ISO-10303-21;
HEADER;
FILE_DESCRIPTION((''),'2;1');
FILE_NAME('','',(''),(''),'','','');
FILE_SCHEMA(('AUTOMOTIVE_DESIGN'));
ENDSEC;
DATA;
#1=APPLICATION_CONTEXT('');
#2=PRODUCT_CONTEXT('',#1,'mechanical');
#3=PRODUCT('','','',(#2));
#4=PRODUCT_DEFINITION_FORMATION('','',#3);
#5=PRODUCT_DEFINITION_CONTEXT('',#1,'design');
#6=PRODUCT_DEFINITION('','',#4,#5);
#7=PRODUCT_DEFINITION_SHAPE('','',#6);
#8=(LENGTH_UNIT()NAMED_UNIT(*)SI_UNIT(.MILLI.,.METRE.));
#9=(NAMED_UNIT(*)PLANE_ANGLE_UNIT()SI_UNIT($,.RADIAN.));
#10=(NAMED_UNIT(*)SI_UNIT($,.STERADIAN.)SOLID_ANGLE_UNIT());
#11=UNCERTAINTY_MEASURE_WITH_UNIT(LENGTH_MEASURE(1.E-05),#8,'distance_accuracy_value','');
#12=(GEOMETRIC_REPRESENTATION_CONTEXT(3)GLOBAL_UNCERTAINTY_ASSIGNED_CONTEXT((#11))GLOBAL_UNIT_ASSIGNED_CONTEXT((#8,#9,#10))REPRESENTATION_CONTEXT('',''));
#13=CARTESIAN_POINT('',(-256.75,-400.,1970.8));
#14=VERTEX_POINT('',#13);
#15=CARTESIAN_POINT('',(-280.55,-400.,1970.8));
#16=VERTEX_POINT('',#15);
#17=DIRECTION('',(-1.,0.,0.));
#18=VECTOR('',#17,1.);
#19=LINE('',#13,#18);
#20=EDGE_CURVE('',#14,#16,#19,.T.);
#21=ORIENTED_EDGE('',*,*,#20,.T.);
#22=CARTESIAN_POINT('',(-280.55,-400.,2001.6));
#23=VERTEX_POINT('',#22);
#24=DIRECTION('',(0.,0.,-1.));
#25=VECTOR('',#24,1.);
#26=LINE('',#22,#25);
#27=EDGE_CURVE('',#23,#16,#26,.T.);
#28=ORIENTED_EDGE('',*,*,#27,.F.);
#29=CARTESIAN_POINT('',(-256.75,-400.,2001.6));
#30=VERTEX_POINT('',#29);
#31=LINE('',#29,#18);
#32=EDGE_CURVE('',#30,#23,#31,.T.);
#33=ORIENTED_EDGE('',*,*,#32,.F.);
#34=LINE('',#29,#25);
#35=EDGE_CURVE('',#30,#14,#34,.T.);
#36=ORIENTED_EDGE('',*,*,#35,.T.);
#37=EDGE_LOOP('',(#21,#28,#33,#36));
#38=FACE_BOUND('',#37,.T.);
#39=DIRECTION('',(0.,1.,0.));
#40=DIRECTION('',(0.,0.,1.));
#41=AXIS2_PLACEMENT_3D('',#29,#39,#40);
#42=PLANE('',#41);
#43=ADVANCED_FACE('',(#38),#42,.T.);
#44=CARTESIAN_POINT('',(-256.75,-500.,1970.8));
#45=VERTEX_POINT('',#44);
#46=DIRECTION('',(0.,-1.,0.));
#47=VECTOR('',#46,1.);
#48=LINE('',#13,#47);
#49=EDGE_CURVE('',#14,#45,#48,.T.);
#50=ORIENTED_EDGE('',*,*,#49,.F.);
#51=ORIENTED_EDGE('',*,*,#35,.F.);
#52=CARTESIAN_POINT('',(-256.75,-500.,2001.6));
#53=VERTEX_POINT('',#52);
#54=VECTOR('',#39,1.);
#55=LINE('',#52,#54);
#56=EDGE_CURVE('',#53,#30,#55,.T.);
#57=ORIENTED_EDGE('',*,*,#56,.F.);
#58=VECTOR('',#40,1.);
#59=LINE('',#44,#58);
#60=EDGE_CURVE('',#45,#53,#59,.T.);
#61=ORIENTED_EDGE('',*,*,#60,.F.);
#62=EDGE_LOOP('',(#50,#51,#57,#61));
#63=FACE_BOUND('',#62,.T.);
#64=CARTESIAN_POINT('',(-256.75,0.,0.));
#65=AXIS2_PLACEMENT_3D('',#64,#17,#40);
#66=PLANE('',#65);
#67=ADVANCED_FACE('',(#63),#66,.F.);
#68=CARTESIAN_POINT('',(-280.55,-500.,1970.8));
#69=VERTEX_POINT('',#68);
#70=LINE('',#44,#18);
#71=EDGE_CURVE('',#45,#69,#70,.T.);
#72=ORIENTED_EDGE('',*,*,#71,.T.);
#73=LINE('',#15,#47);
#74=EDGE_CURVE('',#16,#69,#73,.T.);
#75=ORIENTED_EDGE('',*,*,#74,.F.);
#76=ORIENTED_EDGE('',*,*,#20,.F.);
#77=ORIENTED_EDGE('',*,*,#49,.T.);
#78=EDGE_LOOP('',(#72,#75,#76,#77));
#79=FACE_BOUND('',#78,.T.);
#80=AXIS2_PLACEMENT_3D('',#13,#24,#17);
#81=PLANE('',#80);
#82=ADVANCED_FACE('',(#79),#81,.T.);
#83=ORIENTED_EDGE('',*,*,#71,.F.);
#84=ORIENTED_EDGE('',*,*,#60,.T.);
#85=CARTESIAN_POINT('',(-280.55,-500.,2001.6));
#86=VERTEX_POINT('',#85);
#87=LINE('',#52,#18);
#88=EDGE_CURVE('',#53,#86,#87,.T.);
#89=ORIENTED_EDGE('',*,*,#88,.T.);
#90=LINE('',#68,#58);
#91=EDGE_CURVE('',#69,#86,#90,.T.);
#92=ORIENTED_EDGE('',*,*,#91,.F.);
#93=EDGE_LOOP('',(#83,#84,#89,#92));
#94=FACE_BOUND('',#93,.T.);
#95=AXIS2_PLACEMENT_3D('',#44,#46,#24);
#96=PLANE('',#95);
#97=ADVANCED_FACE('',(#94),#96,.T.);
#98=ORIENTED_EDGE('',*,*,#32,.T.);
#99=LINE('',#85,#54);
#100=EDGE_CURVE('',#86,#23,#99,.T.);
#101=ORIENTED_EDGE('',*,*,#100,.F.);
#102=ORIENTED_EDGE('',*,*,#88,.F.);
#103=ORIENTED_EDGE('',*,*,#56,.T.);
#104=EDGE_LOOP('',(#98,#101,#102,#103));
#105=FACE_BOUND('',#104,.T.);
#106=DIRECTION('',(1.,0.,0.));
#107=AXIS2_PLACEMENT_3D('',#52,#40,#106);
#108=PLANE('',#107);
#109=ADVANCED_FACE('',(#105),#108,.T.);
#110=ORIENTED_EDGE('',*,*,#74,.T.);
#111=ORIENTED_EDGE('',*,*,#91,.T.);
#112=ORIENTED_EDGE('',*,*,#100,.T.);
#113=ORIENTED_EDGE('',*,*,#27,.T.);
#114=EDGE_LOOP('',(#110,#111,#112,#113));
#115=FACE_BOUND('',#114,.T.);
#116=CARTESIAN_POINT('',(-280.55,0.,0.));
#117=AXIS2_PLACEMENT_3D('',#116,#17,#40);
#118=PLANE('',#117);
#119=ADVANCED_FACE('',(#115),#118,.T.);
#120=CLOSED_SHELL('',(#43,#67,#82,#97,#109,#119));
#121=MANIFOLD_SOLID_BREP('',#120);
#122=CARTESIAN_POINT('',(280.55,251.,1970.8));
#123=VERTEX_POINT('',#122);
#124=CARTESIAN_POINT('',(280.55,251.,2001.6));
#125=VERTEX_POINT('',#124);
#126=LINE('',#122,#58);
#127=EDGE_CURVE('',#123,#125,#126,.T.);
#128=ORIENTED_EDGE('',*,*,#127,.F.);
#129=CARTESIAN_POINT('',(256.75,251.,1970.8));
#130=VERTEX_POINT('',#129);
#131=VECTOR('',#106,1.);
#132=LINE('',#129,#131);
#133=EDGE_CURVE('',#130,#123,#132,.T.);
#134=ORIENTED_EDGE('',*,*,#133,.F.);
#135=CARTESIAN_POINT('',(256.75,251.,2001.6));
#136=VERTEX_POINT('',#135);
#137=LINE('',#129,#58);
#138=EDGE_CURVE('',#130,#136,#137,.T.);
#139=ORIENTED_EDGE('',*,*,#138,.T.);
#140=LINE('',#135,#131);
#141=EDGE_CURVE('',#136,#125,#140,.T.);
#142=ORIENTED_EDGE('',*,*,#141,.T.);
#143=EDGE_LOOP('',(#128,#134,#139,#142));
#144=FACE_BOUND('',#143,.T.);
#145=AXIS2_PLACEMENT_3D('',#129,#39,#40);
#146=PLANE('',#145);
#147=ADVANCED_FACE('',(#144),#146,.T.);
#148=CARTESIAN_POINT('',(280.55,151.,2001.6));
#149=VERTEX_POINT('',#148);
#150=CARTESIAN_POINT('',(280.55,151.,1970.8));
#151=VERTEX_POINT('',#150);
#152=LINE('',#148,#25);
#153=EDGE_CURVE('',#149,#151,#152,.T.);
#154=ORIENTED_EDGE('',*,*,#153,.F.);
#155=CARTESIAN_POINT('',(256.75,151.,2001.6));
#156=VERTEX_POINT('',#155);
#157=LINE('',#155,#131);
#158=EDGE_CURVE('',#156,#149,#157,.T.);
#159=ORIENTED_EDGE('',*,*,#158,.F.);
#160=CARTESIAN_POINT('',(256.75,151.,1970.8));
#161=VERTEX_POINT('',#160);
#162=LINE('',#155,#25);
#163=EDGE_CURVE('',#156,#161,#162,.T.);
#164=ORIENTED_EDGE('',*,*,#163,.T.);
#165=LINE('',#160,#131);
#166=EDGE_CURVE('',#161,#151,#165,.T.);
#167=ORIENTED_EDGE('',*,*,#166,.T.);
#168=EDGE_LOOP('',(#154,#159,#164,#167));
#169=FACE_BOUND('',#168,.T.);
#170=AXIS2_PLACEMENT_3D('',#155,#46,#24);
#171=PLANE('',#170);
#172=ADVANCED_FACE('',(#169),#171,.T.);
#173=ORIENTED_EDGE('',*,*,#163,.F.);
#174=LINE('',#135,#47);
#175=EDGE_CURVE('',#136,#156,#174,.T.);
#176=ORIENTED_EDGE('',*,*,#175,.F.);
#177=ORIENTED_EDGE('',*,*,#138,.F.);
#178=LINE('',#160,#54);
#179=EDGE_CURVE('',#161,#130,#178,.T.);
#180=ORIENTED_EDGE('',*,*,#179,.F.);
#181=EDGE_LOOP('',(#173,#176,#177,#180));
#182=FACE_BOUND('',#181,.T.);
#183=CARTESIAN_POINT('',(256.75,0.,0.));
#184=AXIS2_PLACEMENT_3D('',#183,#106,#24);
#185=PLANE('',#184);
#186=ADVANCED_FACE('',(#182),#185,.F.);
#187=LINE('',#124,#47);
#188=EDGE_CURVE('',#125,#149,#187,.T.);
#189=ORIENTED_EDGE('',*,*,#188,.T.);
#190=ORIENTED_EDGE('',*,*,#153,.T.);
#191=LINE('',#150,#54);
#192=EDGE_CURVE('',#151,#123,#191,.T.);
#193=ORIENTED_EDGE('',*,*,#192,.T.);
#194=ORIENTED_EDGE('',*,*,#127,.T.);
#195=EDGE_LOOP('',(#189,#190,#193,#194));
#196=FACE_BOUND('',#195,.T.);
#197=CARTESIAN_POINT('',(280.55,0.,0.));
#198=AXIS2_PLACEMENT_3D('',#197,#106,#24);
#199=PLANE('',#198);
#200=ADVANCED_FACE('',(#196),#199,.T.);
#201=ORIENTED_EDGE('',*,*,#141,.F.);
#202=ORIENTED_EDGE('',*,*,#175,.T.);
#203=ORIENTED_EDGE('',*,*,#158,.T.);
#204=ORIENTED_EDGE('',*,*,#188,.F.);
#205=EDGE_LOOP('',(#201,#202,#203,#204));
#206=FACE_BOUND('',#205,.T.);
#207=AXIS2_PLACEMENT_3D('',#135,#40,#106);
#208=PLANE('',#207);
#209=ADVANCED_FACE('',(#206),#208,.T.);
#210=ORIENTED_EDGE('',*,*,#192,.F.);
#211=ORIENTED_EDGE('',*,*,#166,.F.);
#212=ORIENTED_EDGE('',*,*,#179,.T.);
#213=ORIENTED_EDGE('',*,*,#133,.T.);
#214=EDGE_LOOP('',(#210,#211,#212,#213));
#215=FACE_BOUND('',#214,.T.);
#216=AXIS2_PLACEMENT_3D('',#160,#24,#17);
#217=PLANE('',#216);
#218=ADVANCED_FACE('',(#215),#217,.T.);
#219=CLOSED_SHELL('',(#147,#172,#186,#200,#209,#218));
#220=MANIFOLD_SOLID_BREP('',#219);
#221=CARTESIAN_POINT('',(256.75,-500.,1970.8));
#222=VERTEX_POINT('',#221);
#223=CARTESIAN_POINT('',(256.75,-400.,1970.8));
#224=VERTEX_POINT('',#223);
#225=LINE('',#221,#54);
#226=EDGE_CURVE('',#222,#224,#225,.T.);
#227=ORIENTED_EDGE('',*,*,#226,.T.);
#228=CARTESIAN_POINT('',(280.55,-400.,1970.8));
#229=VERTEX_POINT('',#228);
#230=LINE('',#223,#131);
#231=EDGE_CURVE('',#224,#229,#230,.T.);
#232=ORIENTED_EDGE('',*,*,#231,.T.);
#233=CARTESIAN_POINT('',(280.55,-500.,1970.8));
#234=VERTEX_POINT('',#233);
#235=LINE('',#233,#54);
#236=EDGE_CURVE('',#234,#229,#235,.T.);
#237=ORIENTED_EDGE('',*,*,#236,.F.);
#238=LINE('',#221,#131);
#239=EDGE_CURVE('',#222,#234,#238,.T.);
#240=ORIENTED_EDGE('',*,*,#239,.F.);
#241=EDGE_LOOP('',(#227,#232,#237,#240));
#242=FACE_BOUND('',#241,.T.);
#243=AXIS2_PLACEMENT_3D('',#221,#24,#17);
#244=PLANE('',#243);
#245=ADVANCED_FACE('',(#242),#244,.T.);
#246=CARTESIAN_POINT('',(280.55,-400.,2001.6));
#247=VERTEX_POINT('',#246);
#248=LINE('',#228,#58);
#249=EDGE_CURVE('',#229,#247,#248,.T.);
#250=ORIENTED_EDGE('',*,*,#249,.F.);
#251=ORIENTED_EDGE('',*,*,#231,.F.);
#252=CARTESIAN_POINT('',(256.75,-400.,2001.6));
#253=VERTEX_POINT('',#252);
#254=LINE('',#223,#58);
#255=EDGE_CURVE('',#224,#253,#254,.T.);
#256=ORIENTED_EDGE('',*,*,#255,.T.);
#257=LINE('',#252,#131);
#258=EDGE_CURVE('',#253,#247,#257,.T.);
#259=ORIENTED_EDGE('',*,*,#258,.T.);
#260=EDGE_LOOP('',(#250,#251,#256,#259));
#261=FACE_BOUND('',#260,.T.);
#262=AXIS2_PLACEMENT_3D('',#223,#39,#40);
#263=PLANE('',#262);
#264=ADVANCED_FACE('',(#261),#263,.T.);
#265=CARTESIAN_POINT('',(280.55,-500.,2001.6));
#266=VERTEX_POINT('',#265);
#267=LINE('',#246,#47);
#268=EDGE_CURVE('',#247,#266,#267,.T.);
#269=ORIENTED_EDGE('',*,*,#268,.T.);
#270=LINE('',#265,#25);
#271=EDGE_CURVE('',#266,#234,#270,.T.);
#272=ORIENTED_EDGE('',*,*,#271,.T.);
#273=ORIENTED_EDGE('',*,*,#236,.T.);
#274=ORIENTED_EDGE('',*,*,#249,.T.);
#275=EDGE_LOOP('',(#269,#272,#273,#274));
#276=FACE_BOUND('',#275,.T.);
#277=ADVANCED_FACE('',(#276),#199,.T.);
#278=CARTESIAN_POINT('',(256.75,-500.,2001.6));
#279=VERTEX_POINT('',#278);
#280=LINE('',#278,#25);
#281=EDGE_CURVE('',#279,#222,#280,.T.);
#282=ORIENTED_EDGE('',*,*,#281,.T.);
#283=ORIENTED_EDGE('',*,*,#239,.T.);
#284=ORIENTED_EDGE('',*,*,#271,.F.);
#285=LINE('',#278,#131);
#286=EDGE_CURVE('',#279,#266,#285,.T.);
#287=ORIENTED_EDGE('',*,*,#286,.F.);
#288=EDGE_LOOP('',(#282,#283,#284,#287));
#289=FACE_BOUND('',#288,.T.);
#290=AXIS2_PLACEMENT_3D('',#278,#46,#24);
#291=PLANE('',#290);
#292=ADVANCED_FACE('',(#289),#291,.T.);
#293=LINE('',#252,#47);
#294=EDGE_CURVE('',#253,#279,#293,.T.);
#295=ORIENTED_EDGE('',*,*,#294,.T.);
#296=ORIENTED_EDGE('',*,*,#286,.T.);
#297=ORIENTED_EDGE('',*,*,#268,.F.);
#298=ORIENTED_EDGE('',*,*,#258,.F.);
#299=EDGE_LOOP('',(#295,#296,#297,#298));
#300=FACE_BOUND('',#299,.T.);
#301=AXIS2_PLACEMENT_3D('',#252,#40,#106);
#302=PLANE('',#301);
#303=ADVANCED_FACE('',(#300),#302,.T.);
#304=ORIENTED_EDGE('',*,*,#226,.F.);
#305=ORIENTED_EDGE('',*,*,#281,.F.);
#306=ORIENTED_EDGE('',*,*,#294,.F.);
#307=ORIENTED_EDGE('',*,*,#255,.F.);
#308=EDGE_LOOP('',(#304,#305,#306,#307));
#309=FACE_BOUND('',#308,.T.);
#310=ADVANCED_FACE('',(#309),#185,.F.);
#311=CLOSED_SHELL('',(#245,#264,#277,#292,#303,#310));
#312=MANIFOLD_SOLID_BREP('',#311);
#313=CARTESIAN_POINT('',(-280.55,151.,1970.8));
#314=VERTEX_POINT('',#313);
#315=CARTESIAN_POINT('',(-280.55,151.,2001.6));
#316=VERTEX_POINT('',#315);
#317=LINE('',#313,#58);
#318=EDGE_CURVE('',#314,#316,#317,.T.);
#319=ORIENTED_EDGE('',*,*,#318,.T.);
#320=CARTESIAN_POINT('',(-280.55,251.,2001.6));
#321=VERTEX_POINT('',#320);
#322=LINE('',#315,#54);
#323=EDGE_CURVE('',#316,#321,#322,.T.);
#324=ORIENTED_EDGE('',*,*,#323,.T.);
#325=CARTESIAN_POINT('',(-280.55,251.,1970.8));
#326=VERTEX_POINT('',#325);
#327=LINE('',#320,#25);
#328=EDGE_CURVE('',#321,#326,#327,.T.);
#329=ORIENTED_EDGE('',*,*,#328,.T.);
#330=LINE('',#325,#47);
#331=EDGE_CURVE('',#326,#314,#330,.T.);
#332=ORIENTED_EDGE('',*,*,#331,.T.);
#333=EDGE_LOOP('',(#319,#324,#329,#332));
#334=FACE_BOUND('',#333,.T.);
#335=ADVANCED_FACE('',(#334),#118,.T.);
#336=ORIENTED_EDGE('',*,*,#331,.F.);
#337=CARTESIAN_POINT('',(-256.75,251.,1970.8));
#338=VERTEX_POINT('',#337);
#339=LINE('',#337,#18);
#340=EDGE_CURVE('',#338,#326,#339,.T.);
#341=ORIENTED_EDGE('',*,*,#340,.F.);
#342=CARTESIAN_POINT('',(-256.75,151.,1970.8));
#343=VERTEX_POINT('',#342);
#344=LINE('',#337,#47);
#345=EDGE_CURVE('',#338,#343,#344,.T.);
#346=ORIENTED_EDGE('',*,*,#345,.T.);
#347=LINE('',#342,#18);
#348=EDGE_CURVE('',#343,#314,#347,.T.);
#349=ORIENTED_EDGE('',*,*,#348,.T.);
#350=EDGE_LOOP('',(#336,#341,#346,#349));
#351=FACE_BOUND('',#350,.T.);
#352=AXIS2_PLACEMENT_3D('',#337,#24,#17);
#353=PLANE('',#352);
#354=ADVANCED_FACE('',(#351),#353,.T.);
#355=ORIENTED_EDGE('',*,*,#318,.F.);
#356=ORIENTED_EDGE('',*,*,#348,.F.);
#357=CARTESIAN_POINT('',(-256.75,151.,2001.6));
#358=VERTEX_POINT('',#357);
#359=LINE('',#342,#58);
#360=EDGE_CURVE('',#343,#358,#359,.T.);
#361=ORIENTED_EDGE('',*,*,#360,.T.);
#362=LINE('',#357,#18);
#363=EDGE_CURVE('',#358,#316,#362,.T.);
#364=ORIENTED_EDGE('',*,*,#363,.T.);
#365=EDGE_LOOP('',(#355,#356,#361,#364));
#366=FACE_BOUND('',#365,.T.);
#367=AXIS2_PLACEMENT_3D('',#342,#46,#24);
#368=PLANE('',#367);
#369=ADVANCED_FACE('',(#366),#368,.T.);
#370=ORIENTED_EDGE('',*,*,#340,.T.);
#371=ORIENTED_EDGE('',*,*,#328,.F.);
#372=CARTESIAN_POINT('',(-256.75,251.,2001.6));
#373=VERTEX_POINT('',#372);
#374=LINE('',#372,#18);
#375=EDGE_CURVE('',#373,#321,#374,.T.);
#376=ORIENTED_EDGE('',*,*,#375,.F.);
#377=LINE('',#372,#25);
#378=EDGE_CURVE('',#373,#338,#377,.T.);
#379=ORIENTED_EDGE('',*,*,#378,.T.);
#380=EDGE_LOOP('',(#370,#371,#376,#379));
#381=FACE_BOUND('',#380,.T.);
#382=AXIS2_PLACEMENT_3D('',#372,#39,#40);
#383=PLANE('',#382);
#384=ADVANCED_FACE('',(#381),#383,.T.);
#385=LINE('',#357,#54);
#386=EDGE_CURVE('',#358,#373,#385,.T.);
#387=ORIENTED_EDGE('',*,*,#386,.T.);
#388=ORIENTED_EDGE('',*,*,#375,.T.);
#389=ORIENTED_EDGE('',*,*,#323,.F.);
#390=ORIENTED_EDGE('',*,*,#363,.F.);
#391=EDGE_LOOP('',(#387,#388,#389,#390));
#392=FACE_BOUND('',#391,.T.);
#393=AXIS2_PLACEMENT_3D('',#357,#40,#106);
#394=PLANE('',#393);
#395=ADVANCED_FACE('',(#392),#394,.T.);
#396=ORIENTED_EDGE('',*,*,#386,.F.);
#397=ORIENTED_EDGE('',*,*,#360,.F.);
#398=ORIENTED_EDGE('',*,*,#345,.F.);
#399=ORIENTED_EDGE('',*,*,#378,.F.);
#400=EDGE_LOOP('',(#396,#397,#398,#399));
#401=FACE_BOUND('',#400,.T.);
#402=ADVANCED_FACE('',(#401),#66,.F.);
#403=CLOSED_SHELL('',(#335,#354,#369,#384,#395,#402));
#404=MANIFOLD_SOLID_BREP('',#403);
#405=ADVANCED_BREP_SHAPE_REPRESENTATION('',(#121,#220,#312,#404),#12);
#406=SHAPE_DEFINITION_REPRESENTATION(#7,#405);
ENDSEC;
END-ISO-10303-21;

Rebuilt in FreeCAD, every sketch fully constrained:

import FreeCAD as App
import Part
import Sketcher

V = App.Vector
Q = App.Units.Quantity

doc = App.newDocument("Part")
params = doc.addObject("Spreadsheet::Sheet", "Params")
for row, (alias, value) in enumerate([
    ("sketch1_width", "100 mm"),
    ("sketch1_height", "30.8 mm"),
    ("pad1_length", "23.8 mm"),
    ("sketch2_width", "100 mm"),
    ("sketch2_height", "30.8 mm"),
    ("pad2_length", "23.8 mm"),
    ("sketch3_width", "100 mm"),
    ("sketch3_height", "30.8 mm"),
    ("pad3_length", "23.8 mm"),
    ("sketch4_width", "100 mm"),
    ("sketch4_height", "30.8 mm"),
    ("pad4_length", "23.8 mm"),
], start=1):
    params.set(f"A{row}", alias)
    params.set(f"B{row}", "=" + value)
    params.setAlias(f"B{row}", alias)

body = doc.addObject("PartDesign::Body", "Body")

sketch1 = doc.addObject("Sketcher::SketchObject", "Sketch")
body.addObject(sketch1)
sketch1.AttachmentSupport = (doc.YZ_Plane, [""])
sketch1.MapMode = "FlatFace"
sketch1.AttachmentOffset = App.Placement(V(0, 0, 280.55), App.Rotation())
sketch1.addGeometry(Part.LineSegment(V(-400, 2001.6, 0), V(-500, 2001.6, 0)), False)
sketch1.addGeometry(Part.LineSegment(V(-500, 2001.6, 0), V(-500, 1970.8, 0)), False)
sketch1.addGeometry(Part.LineSegment(V(-500, 1970.8, 0), V(-400, 1970.8, 0)), False)
sketch1.addGeometry(Part.LineSegment(V(-400, 1970.8, 0), V(-400, 2001.6, 0)), False)
sketch1.addConstraint(Sketcher.Constraint("Coincident", 0, 2, 1, 1))
sketch1.addConstraint(Sketcher.Constraint("Coincident", 1, 2, 2, 1))
sketch1.addConstraint(Sketcher.Constraint("Coincident", 2, 2, 3, 1))
sketch1.addConstraint(Sketcher.Constraint("Coincident", 3, 2, 0, 1))
sketch1.addConstraint(Sketcher.Constraint("Horizontal", 0))
sketch1.addConstraint(Sketcher.Constraint("Vertical", 1))
sketch1.addConstraint(Sketcher.Constraint("Horizontal", 2))
sketch1.addConstraint(Sketcher.Constraint("Vertical", 3))
sketch1.addConstraint(Sketcher.Constraint("DistanceX", 0, 2, 0, 1, Q("100 mm")))
sketch1.addConstraint(Sketcher.Constraint("DistanceY", 1, 2, 1, 1, Q("30.8 mm")))
sketch1.addConstraint(Sketcher.Constraint("DistanceX", 0, 2, -1, 1, Q("500 mm")))
sketch1.addConstraint(Sketcher.Constraint("DistanceY", -1, 1, 0, 2, Q("2001.6 mm")))
sketch1.setExpression("Constraints[8]", "Params.sketch1_width")
sketch1.setExpression("Constraints[9]", "Params.sketch1_height")
pad1 = doc.addObject("PartDesign::Pad", "Pad")
body.addObject(pad1)
pad1.Profile = sketch1
pad1.setExpression("Length", "Params.pad1_length")
pad1.Reversed = True
body2 = doc.addObject("PartDesign::Body", "Body001")

sketch2 = doc.addObject("Sketcher::SketchObject", "Sketch001")
body2.addObject(sketch2)
sketch2.AttachmentSupport = (doc.getObject("YZ_Plane001"), [""])
sketch2.MapMode = "FlatFace"
sketch2.AttachmentOffset = App.Placement(V(0, 0, 280.55), App.Rotation())
sketch2.addGeometry(Part.LineSegment(V(251, 2001.6, 0), V(151, 2001.6, 0)), False)
sketch2.addGeometry(Part.LineSegment(V(151, 2001.6, 0), V(151, 1970.8, 0)), False)
sketch2.addGeometry(Part.LineSegment(V(151, 1970.8, 0), V(251, 1970.8, 0)), False)
sketch2.addGeometry(Part.LineSegment(V(251, 1970.8, 0), V(251, 2001.6, 0)), False)
sketch2.addConstraint(Sketcher.Constraint("Coincident", 0, 2, 1, 1))
sketch2.addConstraint(Sketcher.Constraint("Coincident", 1, 2, 2, 1))
sketch2.addConstraint(Sketcher.Constraint("Coincident", 2, 2, 3, 1))
sketch2.addConstraint(Sketcher.Constraint("Coincident", 3, 2, 0, 1))
sketch2.addConstraint(Sketcher.Constraint("Horizontal", 0))
sketch2.addConstraint(Sketcher.Constraint("Vertical", 1))
sketch2.addConstraint(Sketcher.Constraint("Horizontal", 2))
sketch2.addConstraint(Sketcher.Constraint("Vertical", 3))
sketch2.addConstraint(Sketcher.Constraint("DistanceX", 0, 2, 0, 1, Q("100 mm")))
sketch2.addConstraint(Sketcher.Constraint("DistanceY", 1, 2, 1, 1, Q("30.8 mm")))
sketch2.addConstraint(Sketcher.Constraint("DistanceX", -1, 1, 0, 2, Q("151 mm")))
sketch2.addConstraint(Sketcher.Constraint("DistanceY", -1, 1, 0, 2, Q("2001.6 mm")))
sketch2.setExpression("Constraints[8]", "Params.sketch2_width")
sketch2.setExpression("Constraints[9]", "Params.sketch2_height")
pad2 = doc.addObject("PartDesign::Pad", "Pad001")
body2.addObject(pad2)
pad2.Profile = sketch2
pad2.setExpression("Length", "Params.pad2_length")
pad2.Reversed = True
body3 = doc.addObject("PartDesign::Body", "Body002")

sketch3 = doc.addObject("Sketcher::SketchObject", "Sketch002")
body3.addObject(sketch3)
sketch3.AttachmentSupport = (doc.getObject("YZ_Plane002"), [""])
sketch3.MapMode = "FlatFace"
sketch3.AttachmentOffset = App.Placement(V(0, 0, -280.55), App.Rotation())
sketch3.addGeometry(Part.LineSegment(V(-400, 1970.8, 0), V(-500, 1970.8, 0)), False)
sketch3.addGeometry(Part.LineSegment(V(-500, 1970.8, 0), V(-500, 2001.6, 0)), False)
sketch3.addGeometry(Part.LineSegment(V(-500, 2001.6, 0), V(-400, 2001.6, 0)), False)
sketch3.addGeometry(Part.LineSegment(V(-400, 2001.6, 0), V(-400, 1970.8, 0)), False)
sketch3.addConstraint(Sketcher.Constraint("Coincident", 0, 2, 1, 1))
sketch3.addConstraint(Sketcher.Constraint("Coincident", 1, 2, 2, 1))
sketch3.addConstraint(Sketcher.Constraint("Coincident", 2, 2, 3, 1))
sketch3.addConstraint(Sketcher.Constraint("Coincident", 3, 2, 0, 1))
sketch3.addConstraint(Sketcher.Constraint("Horizontal", 0))
sketch3.addConstraint(Sketcher.Constraint("Vertical", 1))
sketch3.addConstraint(Sketcher.Constraint("Horizontal", 2))
sketch3.addConstraint(Sketcher.Constraint("Vertical", 3))
sketch3.addConstraint(Sketcher.Constraint("DistanceX", 0, 2, 0, 1, Q("100 mm")))
sketch3.addConstraint(Sketcher.Constraint("DistanceY", 1, 1, 1, 2, Q("30.8 mm")))
sketch3.addConstraint(Sketcher.Constraint("DistanceX", 0, 2, -1, 1, Q("500 mm")))
sketch3.addConstraint(Sketcher.Constraint("DistanceY", -1, 1, 0, 2, Q("1970.8 mm")))
sketch3.setExpression("Constraints[8]", "Params.sketch3_width")
sketch3.setExpression("Constraints[9]", "Params.sketch3_height")
pad3 = doc.addObject("PartDesign::Pad", "Pad002")
body3.addObject(pad3)
pad3.Profile = sketch3
pad3.setExpression("Length", "Params.pad3_length")
body4 = doc.addObject("PartDesign::Body", "Body003")

sketch4 = doc.addObject("Sketcher::SketchObject", "Sketch003")
body4.addObject(sketch4)
sketch4.AttachmentSupport = (doc.getObject("YZ_Plane003"), [""])
sketch4.MapMode = "FlatFace"
sketch4.AttachmentOffset = App.Placement(V(0, 0, -280.55), App.Rotation())
sketch4.addGeometry(Part.LineSegment(V(251, 1970.8, 0), V(151, 1970.8, 0)), False)
sketch4.addGeometry(Part.LineSegment(V(151, 1970.8, 0), V(151, 2001.6, 0)), False)
sketch4.addGeometry(Part.LineSegment(V(151, 2001.6, 0), V(251, 2001.6, 0)), False)
sketch4.addGeometry(Part.LineSegment(V(251, 2001.6, 0), V(251, 1970.8, 0)), False)
sketch4.addConstraint(Sketcher.Constraint("Coincident", 0, 2, 1, 1))
sketch4.addConstraint(Sketcher.Constraint("Coincident", 1, 2, 2, 1))
sketch4.addConstraint(Sketcher.Constraint("Coincident", 2, 2, 3, 1))
sketch4.addConstraint(Sketcher.Constraint("Coincident", 3, 2, 0, 1))
sketch4.addConstraint(Sketcher.Constraint("Horizontal", 0))
sketch4.addConstraint(Sketcher.Constraint("Vertical", 1))
sketch4.addConstraint(Sketcher.Constraint("Horizontal", 2))
sketch4.addConstraint(Sketcher.Constraint("Vertical", 3))
sketch4.addConstraint(Sketcher.Constraint("DistanceX", 0, 2, 0, 1, Q("100 mm")))
sketch4.addConstraint(Sketcher.Constraint("DistanceY", 1, 1, 1, 2, Q("30.8 mm")))
sketch4.addConstraint(Sketcher.Constraint("DistanceX", -1, 1, 0, 2, Q("151 mm")))
sketch4.addConstraint(Sketcher.Constraint("DistanceY", -1, 1, 0, 2, Q("1970.8 mm")))
sketch4.setExpression("Constraints[8]", "Params.sketch4_width")
sketch4.setExpression("Constraints[9]", "Params.sketch4_height")
pad4 = doc.addObject("PartDesign::Pad", "Pad003")
body4.addObject(pad4)
pad4.Profile = sketch4
pad4.setExpression("Length", "Params.pad4_length")

doc.recompute()
